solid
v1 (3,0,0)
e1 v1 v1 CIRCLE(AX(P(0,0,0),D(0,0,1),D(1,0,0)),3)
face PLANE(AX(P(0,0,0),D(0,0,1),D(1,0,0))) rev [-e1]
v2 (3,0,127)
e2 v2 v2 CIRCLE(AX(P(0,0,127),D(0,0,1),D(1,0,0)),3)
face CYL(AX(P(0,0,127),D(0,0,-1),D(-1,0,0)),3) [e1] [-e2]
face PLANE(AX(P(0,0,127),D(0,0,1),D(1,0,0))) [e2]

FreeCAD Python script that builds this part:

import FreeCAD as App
import Part
import Sketcher

V = App.Vector
Q = App.Units.Quantity

doc = App.newDocument("Part")
params = doc.addObject("Spreadsheet::Sheet", "Params")
for row, (alias, value) in enumerate([
    ("sketch1_diameter", "6 mm"),
    ("pad1_length", "127 mm"),
], start=1):
    params.set(f"A{row}", alias)
    params.set(f"B{row}", "=" + value)
    params.setAlias(f"B{row}", alias)

body = doc.addObject("PartDesign::Body", "Body")

# Sketch on XY plane
sketch1 = body.newObject("Sketcher::SketchObject", "Sketch")
sketch1.AttachmentSupport = (doc.getObject("XY_Plane"), [""])
sketch1.MapMode = "FlatFace"
sketch1.addGeometry(Part.Circle(V(0, 0, 0), V(0, 0, 1), 3), False)
sketch1.addConstraint([
    Sketcher.Constraint("Coincident", 0, 3, -1, 1),
    Sketcher.Constraint("Diameter", 0, Q("6 mm")),
])
sketch1.setExpression("Constraints[1]", "Params.sketch1_diameter")
pad1 = body.newObject("PartDesign::Pad", "Pad")
pad1.Profile = sketch1
pad1.setExpression("Length", "Params.pad1_length")

doc.recompute()
